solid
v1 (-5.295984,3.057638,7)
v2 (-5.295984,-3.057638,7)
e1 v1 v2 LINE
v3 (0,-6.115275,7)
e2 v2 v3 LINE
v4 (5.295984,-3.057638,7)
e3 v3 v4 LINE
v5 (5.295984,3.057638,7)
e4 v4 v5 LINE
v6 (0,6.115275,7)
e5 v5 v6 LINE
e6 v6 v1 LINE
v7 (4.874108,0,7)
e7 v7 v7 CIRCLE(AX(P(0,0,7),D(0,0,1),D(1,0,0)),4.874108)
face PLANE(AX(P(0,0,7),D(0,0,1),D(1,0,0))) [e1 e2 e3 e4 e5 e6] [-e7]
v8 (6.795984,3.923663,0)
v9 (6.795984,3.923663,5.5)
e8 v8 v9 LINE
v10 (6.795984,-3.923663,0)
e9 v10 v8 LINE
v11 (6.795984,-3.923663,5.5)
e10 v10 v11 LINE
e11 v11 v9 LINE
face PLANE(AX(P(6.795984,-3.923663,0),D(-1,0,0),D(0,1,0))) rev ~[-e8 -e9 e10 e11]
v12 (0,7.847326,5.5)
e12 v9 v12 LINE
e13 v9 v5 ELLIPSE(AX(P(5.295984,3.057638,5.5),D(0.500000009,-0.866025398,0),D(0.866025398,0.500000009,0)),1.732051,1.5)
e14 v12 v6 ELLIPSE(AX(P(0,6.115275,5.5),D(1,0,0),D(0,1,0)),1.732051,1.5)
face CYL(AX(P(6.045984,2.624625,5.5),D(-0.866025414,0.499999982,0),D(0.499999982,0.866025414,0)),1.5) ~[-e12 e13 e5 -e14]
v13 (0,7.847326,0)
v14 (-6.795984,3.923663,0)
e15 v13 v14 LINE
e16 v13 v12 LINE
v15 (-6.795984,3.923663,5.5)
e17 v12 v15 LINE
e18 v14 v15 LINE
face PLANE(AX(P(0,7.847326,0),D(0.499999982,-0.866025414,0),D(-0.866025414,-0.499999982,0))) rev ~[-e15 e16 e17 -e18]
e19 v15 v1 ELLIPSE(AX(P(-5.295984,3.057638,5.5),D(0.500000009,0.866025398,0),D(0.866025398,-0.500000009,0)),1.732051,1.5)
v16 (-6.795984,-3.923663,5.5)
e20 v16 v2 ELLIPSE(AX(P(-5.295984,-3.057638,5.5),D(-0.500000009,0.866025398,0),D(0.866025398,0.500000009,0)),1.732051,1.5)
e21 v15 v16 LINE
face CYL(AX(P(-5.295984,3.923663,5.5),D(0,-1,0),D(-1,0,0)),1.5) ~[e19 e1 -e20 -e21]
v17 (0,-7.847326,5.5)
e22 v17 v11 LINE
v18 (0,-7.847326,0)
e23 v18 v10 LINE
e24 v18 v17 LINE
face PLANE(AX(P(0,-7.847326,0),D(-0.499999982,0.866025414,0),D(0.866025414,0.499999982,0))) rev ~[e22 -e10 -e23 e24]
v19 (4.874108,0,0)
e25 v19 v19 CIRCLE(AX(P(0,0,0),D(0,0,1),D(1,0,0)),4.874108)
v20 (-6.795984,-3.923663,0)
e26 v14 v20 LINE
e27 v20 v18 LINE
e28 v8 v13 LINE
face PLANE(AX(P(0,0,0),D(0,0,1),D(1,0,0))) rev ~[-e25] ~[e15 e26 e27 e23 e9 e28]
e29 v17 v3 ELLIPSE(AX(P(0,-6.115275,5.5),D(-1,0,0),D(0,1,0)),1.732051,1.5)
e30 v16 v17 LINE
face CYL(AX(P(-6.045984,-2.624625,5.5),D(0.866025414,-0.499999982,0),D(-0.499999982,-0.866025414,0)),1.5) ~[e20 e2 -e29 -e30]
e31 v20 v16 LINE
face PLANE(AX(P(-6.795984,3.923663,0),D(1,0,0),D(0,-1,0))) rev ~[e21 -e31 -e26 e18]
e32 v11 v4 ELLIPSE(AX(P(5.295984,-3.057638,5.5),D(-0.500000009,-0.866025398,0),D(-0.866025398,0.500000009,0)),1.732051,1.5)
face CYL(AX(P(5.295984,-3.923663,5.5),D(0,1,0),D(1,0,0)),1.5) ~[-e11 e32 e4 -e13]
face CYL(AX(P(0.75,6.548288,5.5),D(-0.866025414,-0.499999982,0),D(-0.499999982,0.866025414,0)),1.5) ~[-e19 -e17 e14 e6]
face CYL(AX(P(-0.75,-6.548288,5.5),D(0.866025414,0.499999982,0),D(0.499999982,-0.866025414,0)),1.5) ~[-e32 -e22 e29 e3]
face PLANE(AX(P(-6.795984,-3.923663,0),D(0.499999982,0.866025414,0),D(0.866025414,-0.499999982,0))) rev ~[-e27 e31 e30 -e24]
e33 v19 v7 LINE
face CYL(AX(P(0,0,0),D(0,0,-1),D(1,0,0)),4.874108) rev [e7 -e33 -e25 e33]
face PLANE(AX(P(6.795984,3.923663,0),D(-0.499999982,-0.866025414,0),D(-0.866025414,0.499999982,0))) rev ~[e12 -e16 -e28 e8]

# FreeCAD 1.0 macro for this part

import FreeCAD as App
import Part
import Sketcher
from FreeCAD import Vector
Q = App.Units.Quantity


def edges_at(feature, points):
    """Names of the edges that pass closest to the given points."""
    edges = feature.Shape.Edges
    near = lambda p: min(range(len(edges)), key=lambda i: edges[i].distToShape(Part.Vertex(*p))[0])
    return sorted({f"Edge{near(p) + 1}" for p in points})

doc = App.newDocument("Part")
params = doc.addObject("Spreadsheet::Sheet", "Params")
for row, (alias, value) in enumerate([
    ("pad1_length", "7 mm"),
    ("fillet_radius", "1.5 mm"),
], start=1):
    params.set(f"A{row}", alias)
    params.set(f"B{row}", "=" + value)
    params.setAlias(f"B{row}", alias)

body = doc.addObject("PartDesign::Body", "Body")

sketch1 = body.newObject("Sketcher::SketchObject", "Sketch")
sketch1.AttachmentSupport = (doc.getObject("XY_Plane"), [""])
sketch1.MapMode = "FlatFace"
sketch1.addGeometry([
    Part.LineSegment(Vector(6.8, 3.9, 0), Vector(0, 7.8, 0)),
    Part.LineSegment(Vector(0, 7.8, 0), Vector(-6.8, 3.9, 0)),
    Part.LineSegment(Vector(-6.8, 3.9, 0), Vector(-6.8, -3.9, 0)),
    Part.LineSegment(Vector(-6.8, -3.9, 0), Vector(0, -7.8, 0)),
    Part.LineSegment(Vector(0, -7.8, 0), Vector(6.8, -3.9, 0)),
    Part.LineSegment(Vector(6.8, -3.9, 0), Vector(6.8, 3.9, 0)),
    Part.Circle(Vector(0, 0, 0), Vector(0, 0, 1), 4.9),
], False)
sketch1.addConstraint([
    Sketcher.Constraint("Coincident", 0, 2, 1, 1),
    Sketcher.Constraint("Coincident", 1, 2, 2, 1),
    Sketcher.Constraint("Coincident", 2, 2, 3, 1),
    Sketcher.Constraint("Coincident", 3, 2, 4, 1),
    Sketcher.Constraint("Coincident", 4, 2, 5, 1),
    Sketcher.Constraint("Coincident", 5, 2, 0, 1),
    Sketcher.Constraint("Vertical", 2),
    Sketcher.Constraint("Vertical", 5),
    Sketcher.Constraint("Coincident", 6, 3, -1, 1),
    Sketcher.Constraint("Symmetric", 0, 2, 3, 2, -1, 1),
    Sketcher.Constraint("Symmetric", 1, 2, 4, 2, -1, 1),
    Sketcher.Constraint("PointOnObject", 0, 2, -2),
    Sketcher.Constraint("Parallel", 0, 3),
    Sketcher.Constraint("Horizontal", 2, 2, 4, 2),
    Sketcher.Constraint("Angle", 0, Q("150.000001 deg")),
    Sketcher.Constraint("Diameter", 6, Q("9.748216 mm")),
    Sketcher.Constraint("DistanceY", 2, 2, 2, 1, Q("7.847326 mm")),
    Sketcher.Constraint("DistanceY", 2, 2, 0, 2, Q("11.770989 mm")),
])
pad1 = body.newObject("PartDesign::Pad", "Pad")
pad1.Profile = sketch1
pad1.setExpression("Length", "Params.pad1_length")
doc.recompute()

fillet = body.newObject("PartDesign::Fillet", "Fillet")
fillet.Base = (pad1, edges_at(pad1, [
    (6.796, 0, 7),
    (3.398, -5.885, 7),
    (-3.398, -5.885, 7),
    (3.398, 5.885, 7),
    (-6.796, 0, 7),
    (-3.398, 5.885, 7),
]))
fillet.setExpression("Radius", "Params.fillet_radius")

doc.recompute()
